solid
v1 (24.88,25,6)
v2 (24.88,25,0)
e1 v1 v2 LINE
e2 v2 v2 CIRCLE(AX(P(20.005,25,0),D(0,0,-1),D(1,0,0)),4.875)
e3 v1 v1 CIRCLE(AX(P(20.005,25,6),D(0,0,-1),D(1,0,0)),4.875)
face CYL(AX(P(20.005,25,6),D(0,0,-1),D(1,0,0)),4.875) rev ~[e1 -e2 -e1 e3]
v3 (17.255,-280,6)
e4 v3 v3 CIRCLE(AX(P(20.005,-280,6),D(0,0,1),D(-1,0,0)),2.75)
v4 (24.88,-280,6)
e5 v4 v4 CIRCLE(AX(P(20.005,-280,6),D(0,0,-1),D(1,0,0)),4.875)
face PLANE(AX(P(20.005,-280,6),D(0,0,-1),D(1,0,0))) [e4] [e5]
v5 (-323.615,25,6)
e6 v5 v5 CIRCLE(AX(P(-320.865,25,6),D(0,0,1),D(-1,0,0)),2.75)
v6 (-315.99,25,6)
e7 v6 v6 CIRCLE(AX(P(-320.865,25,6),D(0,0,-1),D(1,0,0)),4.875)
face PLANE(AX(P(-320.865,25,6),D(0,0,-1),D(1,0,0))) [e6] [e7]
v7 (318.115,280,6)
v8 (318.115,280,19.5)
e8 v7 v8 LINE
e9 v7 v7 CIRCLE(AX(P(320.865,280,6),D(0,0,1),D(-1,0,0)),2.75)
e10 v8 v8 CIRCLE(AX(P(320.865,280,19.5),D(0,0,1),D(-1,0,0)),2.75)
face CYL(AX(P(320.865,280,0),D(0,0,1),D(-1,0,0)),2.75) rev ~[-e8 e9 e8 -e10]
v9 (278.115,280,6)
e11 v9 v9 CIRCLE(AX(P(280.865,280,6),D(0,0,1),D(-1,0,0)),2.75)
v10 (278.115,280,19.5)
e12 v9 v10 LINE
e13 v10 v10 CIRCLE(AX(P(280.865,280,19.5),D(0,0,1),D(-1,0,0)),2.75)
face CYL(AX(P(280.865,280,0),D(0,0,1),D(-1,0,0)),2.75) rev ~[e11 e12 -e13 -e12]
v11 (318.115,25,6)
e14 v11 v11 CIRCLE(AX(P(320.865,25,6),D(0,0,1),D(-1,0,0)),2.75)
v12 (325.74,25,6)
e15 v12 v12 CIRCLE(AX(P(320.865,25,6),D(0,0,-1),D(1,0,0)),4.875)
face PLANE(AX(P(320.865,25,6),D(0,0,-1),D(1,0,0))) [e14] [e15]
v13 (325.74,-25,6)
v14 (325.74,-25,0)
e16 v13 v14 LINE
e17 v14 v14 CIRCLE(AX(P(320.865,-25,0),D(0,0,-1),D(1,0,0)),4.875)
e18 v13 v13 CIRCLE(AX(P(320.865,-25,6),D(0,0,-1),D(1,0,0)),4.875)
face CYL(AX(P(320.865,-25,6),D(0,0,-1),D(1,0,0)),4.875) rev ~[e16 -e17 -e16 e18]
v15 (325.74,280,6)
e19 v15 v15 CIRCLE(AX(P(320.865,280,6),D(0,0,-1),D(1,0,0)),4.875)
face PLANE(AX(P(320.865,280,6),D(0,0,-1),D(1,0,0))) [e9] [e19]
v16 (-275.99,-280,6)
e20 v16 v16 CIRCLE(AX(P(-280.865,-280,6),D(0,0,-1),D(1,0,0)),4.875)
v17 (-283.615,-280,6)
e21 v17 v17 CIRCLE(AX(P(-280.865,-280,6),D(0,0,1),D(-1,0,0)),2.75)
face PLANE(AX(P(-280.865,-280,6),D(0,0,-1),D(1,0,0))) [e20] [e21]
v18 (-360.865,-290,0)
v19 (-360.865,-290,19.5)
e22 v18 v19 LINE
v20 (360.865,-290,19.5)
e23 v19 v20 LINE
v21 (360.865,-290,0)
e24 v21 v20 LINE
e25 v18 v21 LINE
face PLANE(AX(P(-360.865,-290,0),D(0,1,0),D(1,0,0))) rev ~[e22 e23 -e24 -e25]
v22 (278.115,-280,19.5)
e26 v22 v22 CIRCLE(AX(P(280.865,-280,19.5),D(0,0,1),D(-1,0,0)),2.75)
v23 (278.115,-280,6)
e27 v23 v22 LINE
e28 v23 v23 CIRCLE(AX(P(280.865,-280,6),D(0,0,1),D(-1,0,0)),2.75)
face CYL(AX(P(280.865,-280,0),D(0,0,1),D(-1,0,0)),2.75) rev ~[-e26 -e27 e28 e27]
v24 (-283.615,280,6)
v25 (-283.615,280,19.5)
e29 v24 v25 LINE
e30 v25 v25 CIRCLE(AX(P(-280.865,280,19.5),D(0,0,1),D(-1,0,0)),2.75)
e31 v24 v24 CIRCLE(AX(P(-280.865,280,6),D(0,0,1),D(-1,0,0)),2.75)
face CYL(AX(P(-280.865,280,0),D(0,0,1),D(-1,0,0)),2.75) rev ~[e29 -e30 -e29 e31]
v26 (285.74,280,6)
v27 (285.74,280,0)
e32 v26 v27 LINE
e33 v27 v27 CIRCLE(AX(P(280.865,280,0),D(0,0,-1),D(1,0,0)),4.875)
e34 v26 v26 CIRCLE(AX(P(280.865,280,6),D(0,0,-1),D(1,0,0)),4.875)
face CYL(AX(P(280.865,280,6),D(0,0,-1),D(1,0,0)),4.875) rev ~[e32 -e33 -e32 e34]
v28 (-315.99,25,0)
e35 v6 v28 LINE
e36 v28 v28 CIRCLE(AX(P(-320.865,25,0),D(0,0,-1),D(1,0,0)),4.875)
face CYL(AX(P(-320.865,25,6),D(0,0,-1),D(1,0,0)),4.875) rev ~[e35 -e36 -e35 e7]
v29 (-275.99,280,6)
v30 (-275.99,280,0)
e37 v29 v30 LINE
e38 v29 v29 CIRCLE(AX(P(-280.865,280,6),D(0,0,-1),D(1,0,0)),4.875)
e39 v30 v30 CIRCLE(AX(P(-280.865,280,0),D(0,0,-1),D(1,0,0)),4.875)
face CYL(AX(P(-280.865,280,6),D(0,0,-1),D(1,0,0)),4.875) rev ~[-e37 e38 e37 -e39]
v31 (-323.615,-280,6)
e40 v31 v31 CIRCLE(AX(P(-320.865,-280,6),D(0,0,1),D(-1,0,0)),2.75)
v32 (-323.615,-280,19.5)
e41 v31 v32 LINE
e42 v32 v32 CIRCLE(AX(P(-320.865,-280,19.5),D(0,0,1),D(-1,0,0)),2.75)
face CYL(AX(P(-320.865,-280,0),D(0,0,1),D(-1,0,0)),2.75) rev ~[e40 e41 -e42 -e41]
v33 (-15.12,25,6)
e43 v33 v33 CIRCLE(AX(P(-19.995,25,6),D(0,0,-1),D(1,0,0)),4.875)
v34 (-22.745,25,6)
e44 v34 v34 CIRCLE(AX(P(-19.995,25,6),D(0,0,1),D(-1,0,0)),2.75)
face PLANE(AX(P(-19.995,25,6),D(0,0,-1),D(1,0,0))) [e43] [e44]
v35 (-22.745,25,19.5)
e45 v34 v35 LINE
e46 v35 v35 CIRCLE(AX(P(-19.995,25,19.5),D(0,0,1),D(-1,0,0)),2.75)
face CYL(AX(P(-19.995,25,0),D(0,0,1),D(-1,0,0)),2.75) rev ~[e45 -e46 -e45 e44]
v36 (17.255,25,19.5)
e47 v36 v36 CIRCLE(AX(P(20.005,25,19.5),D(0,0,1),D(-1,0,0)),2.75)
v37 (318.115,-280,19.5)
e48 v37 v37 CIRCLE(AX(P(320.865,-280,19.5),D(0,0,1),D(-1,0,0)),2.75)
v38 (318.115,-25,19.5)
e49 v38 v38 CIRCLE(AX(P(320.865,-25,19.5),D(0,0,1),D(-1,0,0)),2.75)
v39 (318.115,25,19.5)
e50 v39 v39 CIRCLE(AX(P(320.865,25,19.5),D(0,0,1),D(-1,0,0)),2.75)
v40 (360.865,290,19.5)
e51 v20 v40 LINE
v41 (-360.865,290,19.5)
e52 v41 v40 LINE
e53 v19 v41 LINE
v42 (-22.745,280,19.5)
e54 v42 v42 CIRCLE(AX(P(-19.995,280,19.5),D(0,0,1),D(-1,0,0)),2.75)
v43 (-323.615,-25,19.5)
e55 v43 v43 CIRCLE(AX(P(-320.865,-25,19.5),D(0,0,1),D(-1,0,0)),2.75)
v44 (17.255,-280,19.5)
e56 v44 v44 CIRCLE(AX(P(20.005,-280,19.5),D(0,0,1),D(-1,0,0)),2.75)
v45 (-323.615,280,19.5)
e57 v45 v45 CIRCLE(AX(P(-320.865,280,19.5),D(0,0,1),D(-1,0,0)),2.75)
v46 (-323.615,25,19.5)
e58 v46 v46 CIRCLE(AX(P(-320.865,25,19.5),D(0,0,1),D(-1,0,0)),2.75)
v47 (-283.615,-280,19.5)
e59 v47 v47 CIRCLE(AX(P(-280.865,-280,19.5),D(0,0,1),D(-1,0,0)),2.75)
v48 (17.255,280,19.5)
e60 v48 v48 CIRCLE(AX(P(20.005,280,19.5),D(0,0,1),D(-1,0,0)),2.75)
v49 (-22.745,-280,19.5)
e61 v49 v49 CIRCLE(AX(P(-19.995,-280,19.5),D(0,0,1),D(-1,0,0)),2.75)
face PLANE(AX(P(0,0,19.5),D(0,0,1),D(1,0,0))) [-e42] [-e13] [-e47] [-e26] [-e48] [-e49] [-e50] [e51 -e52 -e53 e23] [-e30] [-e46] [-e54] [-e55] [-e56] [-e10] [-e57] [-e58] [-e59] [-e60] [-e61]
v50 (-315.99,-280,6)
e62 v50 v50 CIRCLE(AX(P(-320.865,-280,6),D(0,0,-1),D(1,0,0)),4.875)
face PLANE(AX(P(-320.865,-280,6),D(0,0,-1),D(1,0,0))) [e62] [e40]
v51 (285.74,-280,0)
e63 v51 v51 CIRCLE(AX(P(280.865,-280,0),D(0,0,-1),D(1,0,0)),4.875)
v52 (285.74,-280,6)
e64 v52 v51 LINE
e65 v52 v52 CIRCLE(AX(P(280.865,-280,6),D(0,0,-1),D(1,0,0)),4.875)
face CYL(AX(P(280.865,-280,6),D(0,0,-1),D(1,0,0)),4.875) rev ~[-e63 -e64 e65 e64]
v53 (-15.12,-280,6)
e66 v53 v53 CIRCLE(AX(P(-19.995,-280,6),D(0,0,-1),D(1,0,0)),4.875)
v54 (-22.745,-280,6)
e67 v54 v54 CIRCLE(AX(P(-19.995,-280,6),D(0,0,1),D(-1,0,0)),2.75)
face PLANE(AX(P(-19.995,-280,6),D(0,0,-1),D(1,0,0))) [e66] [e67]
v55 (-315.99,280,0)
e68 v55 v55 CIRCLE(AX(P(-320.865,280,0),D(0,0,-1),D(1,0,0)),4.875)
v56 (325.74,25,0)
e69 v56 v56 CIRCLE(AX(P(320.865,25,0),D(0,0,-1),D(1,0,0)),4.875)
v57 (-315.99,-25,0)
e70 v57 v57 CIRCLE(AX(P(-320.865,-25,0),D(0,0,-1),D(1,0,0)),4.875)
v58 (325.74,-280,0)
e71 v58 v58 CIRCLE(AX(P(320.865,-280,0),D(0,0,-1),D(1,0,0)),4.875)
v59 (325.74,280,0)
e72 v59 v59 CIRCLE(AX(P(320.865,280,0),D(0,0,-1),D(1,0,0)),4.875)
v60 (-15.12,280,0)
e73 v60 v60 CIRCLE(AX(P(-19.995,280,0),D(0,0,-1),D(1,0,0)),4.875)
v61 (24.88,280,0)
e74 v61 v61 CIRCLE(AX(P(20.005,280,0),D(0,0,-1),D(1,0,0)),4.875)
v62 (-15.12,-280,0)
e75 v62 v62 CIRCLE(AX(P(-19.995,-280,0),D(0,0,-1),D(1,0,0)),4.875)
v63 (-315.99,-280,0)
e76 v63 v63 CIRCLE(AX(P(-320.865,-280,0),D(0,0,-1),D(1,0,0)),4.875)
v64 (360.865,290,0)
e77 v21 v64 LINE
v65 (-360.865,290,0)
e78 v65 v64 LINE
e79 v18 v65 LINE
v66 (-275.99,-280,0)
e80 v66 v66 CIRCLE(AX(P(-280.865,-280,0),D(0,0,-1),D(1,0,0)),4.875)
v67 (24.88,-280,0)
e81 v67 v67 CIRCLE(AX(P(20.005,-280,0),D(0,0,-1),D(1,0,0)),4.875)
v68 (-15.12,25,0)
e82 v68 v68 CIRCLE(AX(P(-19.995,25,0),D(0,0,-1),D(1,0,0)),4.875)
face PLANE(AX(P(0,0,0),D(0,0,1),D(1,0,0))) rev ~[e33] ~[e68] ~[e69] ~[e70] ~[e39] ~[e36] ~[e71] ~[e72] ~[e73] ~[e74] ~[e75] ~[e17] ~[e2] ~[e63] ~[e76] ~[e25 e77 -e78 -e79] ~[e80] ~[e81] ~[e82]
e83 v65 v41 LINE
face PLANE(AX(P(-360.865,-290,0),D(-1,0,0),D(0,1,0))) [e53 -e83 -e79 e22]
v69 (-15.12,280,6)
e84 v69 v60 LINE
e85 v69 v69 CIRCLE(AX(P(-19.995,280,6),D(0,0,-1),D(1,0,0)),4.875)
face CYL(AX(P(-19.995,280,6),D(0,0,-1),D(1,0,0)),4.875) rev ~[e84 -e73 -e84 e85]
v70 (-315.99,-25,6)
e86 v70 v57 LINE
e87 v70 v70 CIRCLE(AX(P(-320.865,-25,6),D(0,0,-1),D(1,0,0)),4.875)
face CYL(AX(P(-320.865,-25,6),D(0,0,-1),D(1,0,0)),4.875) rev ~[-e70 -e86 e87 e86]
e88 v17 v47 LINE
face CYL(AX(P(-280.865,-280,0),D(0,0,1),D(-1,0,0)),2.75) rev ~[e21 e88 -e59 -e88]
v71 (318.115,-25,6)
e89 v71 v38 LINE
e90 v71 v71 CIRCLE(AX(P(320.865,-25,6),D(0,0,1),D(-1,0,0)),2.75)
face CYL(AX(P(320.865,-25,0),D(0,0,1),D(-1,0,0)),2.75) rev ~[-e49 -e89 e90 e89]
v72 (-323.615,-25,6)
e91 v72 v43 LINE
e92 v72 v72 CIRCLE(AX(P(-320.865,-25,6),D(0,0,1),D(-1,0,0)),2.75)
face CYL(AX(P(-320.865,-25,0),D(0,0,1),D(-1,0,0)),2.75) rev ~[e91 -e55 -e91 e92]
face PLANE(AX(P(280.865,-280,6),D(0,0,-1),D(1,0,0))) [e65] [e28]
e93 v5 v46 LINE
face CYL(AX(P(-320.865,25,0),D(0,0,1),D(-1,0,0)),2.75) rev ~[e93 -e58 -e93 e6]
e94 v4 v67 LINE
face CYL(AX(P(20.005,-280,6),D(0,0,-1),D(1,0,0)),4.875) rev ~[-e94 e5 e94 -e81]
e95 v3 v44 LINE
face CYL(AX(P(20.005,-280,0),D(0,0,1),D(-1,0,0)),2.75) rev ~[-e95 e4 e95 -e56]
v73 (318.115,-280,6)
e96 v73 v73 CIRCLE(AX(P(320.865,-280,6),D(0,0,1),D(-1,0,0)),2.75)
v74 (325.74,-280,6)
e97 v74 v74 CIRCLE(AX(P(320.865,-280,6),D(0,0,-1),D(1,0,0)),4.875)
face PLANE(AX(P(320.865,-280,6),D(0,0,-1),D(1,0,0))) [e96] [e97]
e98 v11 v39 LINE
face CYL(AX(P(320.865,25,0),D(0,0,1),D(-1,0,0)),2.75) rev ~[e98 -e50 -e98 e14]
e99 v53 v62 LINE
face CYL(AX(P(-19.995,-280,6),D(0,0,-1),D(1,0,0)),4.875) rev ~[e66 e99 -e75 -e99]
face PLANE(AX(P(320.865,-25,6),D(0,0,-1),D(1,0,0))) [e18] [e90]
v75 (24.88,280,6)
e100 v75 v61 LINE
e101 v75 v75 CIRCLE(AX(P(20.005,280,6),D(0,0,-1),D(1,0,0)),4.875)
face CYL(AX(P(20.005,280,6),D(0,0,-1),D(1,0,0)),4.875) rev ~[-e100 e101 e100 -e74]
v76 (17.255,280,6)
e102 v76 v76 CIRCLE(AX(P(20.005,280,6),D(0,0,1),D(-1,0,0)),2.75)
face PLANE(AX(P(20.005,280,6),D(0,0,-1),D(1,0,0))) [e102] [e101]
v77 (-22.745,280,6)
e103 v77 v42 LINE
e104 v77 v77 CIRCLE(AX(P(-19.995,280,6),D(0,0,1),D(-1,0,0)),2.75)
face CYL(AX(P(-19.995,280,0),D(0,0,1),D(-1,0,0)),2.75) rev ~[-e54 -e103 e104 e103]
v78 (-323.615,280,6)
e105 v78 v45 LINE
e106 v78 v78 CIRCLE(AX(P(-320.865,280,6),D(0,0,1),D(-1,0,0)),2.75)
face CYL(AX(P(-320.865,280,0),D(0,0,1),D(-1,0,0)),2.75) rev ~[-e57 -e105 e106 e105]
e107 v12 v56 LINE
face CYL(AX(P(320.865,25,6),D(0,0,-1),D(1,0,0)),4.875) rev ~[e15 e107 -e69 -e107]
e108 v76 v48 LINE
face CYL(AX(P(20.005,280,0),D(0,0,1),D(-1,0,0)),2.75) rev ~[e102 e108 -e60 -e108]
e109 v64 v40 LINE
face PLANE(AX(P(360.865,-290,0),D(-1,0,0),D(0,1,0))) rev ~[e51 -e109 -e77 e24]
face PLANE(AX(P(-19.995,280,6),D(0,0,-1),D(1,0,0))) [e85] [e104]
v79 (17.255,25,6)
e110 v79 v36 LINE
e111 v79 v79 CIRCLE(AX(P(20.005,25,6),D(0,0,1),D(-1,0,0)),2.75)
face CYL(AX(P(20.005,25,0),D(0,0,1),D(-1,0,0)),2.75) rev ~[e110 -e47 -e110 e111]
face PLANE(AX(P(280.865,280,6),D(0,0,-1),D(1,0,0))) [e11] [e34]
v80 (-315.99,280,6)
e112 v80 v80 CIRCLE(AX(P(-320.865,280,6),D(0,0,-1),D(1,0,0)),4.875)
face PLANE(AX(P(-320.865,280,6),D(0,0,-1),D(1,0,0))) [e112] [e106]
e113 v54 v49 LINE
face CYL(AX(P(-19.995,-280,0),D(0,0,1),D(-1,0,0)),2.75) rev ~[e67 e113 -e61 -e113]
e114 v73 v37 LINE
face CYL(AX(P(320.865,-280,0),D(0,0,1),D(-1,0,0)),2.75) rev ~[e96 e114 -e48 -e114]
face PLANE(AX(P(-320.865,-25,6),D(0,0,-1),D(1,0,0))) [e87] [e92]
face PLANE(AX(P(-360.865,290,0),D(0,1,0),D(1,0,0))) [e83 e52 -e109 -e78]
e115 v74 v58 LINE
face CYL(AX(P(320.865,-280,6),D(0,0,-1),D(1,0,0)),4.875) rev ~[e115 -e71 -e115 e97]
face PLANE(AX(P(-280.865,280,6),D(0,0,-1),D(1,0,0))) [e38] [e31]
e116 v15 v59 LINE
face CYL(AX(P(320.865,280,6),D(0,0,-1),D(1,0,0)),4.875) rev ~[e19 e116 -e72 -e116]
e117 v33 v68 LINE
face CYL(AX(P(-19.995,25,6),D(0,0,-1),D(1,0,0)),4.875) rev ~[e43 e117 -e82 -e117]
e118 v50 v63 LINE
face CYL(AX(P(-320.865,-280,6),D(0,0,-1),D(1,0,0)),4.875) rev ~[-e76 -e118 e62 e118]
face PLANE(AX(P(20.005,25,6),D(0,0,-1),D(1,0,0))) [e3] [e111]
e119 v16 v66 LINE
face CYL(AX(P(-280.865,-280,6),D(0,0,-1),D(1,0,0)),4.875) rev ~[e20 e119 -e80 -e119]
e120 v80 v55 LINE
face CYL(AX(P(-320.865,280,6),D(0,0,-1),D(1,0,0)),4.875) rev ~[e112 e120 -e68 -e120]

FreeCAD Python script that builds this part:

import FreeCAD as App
import Part
import Sketcher


def add_polygon(sketch, points):
    """Adds a closed chain of lines whose ends are joined by coincident constraints."""
    first, n = sketch.GeometryCount, len(points)
    for a, b in zip(points, points[1:] + points[:1]):
        sketch.addGeometry(Part.LineSegment(App.Vector(*a, 0), App.Vector(*b, 0)), False)
    for i in range(n):
        sketch.addConstraint(Sketcher.Constraint("Coincident", first + i, 2, first + (i + 1) % n, 1))

doc = App.newDocument("Part")
body = doc.addObject("PartDesign::Body", "Body")

# Sketch on XY plane
sketch1 = body.newObject("Sketcher::SketchObject", "Sketch")
sketch1.AttachmentSupport = (doc.getObject("XY_Plane"), [""])
sketch1.MapMode = "FlatFace"
add_polygon(sketch1, [(-361, 290), (-361, -290), (361, -290), (361, 290)])  # lines 0-3
sketch1.addConstraint([
    Sketcher.Constraint("Vertical", 0),
    Sketcher.Constraint("Horizontal", 1),
    Sketcher.Constraint("Vertical", 2),
    Sketcher.Constraint("Horizontal", 3),
    Sketcher.Constraint("Symmetric", 0, 2, 2, 2, -1, 1),
    Sketcher.Constraint("DistanceY", 0, 2, 0, 1, 580.0),
    Sketcher.Constraint("DistanceX", 1, 1, 1, 2, 721.73),
])
pad1 = body.newObject("PartDesign::Pad", "Pad")
pad1.Profile = sketch1
pad1.Length = 19.5

# Sketch on XY plane
sketch2 = body.newObject("Sketcher::SketchObject", "Sketch001")
sketch2.AttachmentSupport = (doc.getObject("XY_Plane"), [""])
sketch2.MapMode = "FlatFace"
sketch2.addGeometry([
    Part.Circle(App.Vector(-320.9, 280, 0), App.Vector(0, 0, 1), 2.8),  # 0
    Part.Circle(App.Vector(-20, 280, 0), App.Vector(0, 0, 1), 2.8),  # 1
    Part.Circle(App.Vector(20, 280, 0), App.Vector(0, 0, 1), 2.8),  # 2
    Part.Circle(App.Vector(320.9, 280, 0), App.Vector(0, 0, 1), 2.8),  # 3
    Part.Circle(App.Vector(320.9, 25, 0), App.Vector(0, 0, 1), 2.8),  # 4
    Part.Circle(App.Vector(320.9, -25, 0), App.Vector(0, 0, 1), 2.8),  # 5
    Part.Circle(App.Vector(320.9, -280, 0), App.Vector(0, 0, 1), 2.8),  # 6
    Part.Circle(App.Vector(20, -280, 0), App.Vector(0, 0, 1), 2.8),  # 7
    Part.Circle(App.Vector(-20, -280, 0), App.Vector(0, 0, 1), 2.8),  # 8
    Part.Circle(App.Vector(-320.9, -280, 0), App.Vector(0, 0, 1), 2.8),  # 9
    Part.Circle(App.Vector(-320.9, -25, 0), App.Vector(0, 0, 1), 2.8),  # 10
    Part.Circle(App.Vector(-320.9, 25, 0), App.Vector(0, 0, 1), 2.8),  # 11
    Part.Circle(App.Vector(-20, 25, 0), App.Vector(0, 0, 1), 2.8),  # 12
    Part.Circle(App.Vector(20, 25, 0), App.Vector(0, 0, 1), 2.8),  # 13
    Part.Circle(App.Vector(-280.9, -280, 0), App.Vector(0, 0, 1), 2.8),  # 14
    Part.Circle(App.Vector(-280.9, 280, 0), App.Vector(0, 0, 1), 2.8),  # 15
    Part.Circle(App.Vector(280.9, 280, 0), App.Vector(0, 0, 1), 2.8),  # 16
    Part.Circle(App.Vector(280.9, -280, 0), App.Vector(0, 0, 1), 2.8),  # 17
], False)
sketch2.addConstraint([
    Sketcher.Constraint("Equal", 0, 1),
    Sketcher.Constraint("Equal", 1, 2),
    Sketcher.Constraint("Equal", 2, 3),
    Sketcher.Constraint("Equal", 3, 4),
    Sketcher.Constraint("Equal", 4, 5),
    Sketcher.Constraint("Equal", 5, 6),
    Sketcher.Constraint("Equal", 6, 7),
    Sketcher.Constraint("Equal", 7, 8),
    Sketcher.Constraint("Equal", 8, 9),
    Sketcher.Constraint("Equal", 9, 10),
    Sketcher.Constraint("Equal", 10, 11),
    Sketcher.Constraint("Equal", 11, 12),
    Sketcher.Constraint("Equal", 12, 13),
    Sketcher.Constraint("Equal", 13, 14),
    Sketcher.Constraint("Equal", 14, 15),
    Sketcher.Constraint("Equal", 15, 16),
    Sketcher.Constraint("Equal", 16, 17),
    Sketcher.Constraint("Symmetric", 0, 3, 6, 3, -1, 1),
    Sketcher.Constraint("Symmetric", 3, 3, 9, 3, -1, 1),
    Sketcher.Constraint("Symmetric", 4, 3, 10, 3, -1, 1),
    Sketcher.Constraint("Symmetric", 5, 3, 11, 3, -1, 1),
    Sketcher.Constraint("Symmetric", 14, 3, 16, 3, -1, 1),
    Sketcher.Constraint("Symmetric", 15, 3, 17, 3, -1, 1),
    Sketcher.Constraint("Symmetric", 0, 3, 3, 3, -2),
    Sketcher.Constraint("Symmetric", 5, 3, 10, 3, -2),
    Sketcher.Constraint("Symmetric", 15, 3, 16, 3, -2),
    Sketcher.Constraint("Symmetric", 2, 3, 7, 3, -1),
    Sketcher.Constraint("Symmetric", 1, 3, 8, 3, -1),
    Sketcher.Constraint("Horizontal", 0, 3, 1, 3),
    Sketcher.Constraint("Horizontal", 1, 3, 2, 3),
    Sketcher.Constraint("Horizontal", 11, 3, 12, 3),
    Sketcher.Constraint("Horizontal", 12, 3, 13, 3),
    Sketcher.Constraint("Horizontal", 9, 3, 14, 3),
    Sketcher.Constraint("Vertical", 3, 3, 4, 3),
    Sketcher.Constraint("Vertical", 8, 3, 12, 3),
    Sketcher.Constraint("Vertical", 7, 3, 13, 3),
    Sketcher.Constraint("Diameter", 0, 5.5),
    Sketcher.Constraint("DistanceY", -1, 1, 0, 3, 280.0),
    Sketcher.Constraint("DistanceY", -1, 1, 4, 3, 25.0),
    Sketcher.Constraint("DistanceX", 1, 3, 2, 3, 40.0),
    Sketcher.Constraint("DistanceX", 9, 3, 14, 3, 40.0),
    Sketcher.Constraint("DistanceX", 0, 3, 1, 3, 300.87),
    Sketcher.Constraint("DistanceX", 2, 3, 3, 3, 300.86),
])
doc.recompute()
hole = body.newObject("PartDesign::Hole", "Hole")
hole.Profile = sketch2
hole.ThreadType = "None"
hole.Diameter = 5.5
hole.DepthType = "ThroughAll"
hole.HoleCutType = "Counterbore"
hole.HoleCutDiameter = 9.75
hole.HoleCutDepth = 6
hole.Reversed = True

doc.recompute()
